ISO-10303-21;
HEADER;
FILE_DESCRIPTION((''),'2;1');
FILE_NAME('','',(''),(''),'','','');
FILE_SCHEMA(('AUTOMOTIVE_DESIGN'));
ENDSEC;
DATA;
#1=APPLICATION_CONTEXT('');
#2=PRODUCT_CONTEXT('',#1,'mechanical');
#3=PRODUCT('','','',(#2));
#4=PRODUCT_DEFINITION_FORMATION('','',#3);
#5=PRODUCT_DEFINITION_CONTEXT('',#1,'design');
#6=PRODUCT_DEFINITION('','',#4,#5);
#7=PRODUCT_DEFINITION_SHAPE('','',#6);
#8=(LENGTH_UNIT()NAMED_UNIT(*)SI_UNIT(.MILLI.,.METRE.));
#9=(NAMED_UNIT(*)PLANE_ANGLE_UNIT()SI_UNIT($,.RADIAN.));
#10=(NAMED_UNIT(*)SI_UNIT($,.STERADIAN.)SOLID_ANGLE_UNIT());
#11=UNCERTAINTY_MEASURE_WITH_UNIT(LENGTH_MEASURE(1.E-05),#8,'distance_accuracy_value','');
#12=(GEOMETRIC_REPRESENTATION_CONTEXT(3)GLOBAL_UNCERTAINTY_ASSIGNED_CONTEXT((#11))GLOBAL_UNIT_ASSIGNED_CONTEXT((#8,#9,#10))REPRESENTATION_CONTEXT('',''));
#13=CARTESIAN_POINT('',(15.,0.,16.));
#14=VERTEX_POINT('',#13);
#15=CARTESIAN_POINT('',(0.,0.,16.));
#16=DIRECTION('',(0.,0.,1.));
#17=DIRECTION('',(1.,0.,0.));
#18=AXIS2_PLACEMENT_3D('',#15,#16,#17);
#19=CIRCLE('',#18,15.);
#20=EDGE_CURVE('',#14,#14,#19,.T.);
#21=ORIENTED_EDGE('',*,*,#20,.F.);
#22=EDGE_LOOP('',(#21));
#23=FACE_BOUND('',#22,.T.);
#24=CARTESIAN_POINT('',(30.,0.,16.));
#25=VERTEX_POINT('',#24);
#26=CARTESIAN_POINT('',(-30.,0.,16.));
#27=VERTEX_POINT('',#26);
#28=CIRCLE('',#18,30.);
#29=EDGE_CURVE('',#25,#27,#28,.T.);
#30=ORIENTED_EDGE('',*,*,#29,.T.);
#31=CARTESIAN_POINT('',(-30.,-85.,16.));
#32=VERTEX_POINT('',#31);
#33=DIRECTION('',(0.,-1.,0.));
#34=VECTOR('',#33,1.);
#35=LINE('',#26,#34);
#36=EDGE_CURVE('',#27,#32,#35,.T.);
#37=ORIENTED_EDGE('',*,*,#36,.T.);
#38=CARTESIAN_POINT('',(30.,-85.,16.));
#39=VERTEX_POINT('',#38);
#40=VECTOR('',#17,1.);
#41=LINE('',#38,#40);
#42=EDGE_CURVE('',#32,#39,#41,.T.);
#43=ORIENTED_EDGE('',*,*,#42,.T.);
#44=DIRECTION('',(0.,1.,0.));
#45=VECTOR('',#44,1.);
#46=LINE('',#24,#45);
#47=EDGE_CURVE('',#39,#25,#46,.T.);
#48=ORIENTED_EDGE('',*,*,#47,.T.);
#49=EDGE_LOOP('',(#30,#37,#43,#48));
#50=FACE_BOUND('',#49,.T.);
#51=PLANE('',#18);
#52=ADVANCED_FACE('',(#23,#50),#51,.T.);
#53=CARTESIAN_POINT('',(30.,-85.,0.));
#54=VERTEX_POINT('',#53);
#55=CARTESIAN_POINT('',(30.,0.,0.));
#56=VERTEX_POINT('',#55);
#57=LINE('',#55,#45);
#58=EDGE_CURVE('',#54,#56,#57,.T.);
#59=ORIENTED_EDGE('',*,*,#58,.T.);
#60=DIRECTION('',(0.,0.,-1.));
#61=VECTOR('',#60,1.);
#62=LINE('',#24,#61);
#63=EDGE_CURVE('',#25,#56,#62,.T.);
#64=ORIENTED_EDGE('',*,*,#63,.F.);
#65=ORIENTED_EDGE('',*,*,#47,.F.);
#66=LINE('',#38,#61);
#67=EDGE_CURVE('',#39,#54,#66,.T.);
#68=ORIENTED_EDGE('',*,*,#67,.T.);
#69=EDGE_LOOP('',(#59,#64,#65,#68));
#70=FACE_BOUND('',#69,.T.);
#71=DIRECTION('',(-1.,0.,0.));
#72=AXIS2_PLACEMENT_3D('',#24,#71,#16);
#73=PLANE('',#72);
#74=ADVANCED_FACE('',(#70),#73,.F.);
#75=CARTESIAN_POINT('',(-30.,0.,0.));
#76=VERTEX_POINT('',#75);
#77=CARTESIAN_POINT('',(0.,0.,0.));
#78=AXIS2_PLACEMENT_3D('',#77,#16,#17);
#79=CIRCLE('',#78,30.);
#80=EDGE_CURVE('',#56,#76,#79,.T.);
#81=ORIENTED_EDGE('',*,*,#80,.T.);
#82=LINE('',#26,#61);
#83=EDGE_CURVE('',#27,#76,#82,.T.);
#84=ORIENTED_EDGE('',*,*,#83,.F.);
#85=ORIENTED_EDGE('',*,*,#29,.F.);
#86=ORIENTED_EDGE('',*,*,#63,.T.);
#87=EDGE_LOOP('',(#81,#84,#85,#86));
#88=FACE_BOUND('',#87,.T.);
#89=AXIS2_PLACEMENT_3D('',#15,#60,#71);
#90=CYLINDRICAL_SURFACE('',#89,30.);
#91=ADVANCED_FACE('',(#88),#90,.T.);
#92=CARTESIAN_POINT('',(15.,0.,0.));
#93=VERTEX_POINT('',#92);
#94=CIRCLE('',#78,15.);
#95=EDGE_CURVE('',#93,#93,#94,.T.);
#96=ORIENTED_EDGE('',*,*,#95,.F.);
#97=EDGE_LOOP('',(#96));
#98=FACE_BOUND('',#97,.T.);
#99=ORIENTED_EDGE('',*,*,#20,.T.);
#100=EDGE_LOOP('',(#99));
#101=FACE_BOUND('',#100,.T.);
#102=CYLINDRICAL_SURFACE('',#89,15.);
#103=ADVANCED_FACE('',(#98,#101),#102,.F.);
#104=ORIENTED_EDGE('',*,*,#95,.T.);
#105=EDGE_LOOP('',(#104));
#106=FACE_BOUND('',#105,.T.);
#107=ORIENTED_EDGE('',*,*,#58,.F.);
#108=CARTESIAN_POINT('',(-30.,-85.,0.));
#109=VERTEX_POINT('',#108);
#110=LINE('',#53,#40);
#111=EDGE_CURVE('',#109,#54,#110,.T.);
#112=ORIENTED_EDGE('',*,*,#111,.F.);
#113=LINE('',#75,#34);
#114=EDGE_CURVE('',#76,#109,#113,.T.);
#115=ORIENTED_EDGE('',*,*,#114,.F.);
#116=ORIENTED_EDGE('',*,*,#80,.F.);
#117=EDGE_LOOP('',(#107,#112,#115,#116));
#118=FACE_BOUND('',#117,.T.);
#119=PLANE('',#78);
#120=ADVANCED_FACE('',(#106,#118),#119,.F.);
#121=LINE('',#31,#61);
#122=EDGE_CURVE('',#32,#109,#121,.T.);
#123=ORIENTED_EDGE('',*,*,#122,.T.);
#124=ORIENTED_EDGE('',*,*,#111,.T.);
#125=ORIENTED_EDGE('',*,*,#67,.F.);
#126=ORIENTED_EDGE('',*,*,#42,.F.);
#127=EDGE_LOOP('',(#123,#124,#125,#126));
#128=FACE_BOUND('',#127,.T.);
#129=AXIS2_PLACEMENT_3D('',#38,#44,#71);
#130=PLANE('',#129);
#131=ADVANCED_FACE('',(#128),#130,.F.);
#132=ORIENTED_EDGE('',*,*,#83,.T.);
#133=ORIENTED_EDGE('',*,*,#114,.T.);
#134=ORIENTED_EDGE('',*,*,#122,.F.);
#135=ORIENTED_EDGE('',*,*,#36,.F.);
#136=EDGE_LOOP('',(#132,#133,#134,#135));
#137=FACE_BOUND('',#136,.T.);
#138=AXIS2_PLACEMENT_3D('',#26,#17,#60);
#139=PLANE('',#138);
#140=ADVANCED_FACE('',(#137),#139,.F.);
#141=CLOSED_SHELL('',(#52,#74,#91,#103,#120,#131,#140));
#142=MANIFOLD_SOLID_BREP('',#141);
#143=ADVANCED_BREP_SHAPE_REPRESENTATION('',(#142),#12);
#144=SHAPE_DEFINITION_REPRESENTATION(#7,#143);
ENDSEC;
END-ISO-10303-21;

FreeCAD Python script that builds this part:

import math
import FreeCAD as App
import Part
import Sketcher
from FreeCAD import Vector

doc = App.newDocument("Part")
params = doc.addObject("Spreadsheet::Sheet", "Params")
for row, (alias, value) in enumerate([
    ("sketch1_diameter", "30 mm"),
    ("sketch1_radius", "30 mm"),
    ("sketch1_height", "85 mm"),
    ("pad1_length", "16 mm"),
], start=1):
    params.set(f"A{row}", alias)
    params.set(f"B{row}", "=" + value)
    params.setAlias(f"B{row}", alias)

body = doc.addObject("PartDesign::Body", "Body")

# Sketch on XY plane
sketch1 = body.newObject("Sketcher::SketchObject", "Sketch")
sketch1.AttachmentSupport = (doc.getObject("XY_Plane"), [""])
sketch1.MapMode = "FlatFace"
sketch1.addGeometry(Part.LineSegment(Vector(30, -85, 0), Vector(30, 0, 0)), False)
sketch1.addGeometry(Part.ArcOfCircle(Part.Circle(Vector(0, 0, 0), Vector(0, 0, 1), 30), math.radians(0), math.radians(180)), False)
sketch1.addGeometry(Part.LineSegment(Vector(-30, 0, 0), Vector(-30, -85, 0)), False)
sketch1.addGeometry(Part.LineSegment(Vector(-30, -85, 0), Vector(30, -85, 0)), False)
sketch1.addGeometry(Part.Circle(Vector(0, 0, 0), Vector(0, 0, 1), 15), False)
sketch1.addConstraint(Sketcher.Constraint("Tangent", 0, 2, 1, 1))
sketch1.addConstraint(Sketcher.Constraint("Tangent", 1, 2, 2, 1))
sketch1.addConstraint(Sketcher.Constraint("Coincident", 2, 2, 3, 1))
sketch1.addConstraint(Sketcher.Constraint("Coincident", 3, 2, 0, 1))
sketch1.addConstraint(Sketcher.Constraint("Vertical", 0))
sketch1.addConstraint(Sketcher.Constraint("Vertical", 2))
sketch1.addConstraint(Sketcher.Constraint("Horizontal", 3))
sketch1.addConstraint(Sketcher.Constraint("Coincident", 1, 3, -1, 1))
sketch1.addConstraint(Sketcher.Constraint("Coincident", 4, 3, -1, 1))
sketch1.addConstraint(Sketcher.Constraint("Diameter", 4, 30.0))
sketch1.addConstraint(Sketcher.Constraint("Radius", 1, 30.0))
sketch1.addConstraint(Sketcher.Constraint("DistanceY", 0, 1, 0, 2, 85.0))
sketch1.setExpression("Constraints[9]", "Params.sketch1_diameter")
sketch1.setExpression("Constraints[10]", "Params.sketch1_radius")
sketch1.setExpression("Constraints[11]", "Params.sketch1_height")
pad1 = body.newObject("PartDesign::Pad", "Pad")
pad1.Profile = sketch1
pad1.setExpression("Length", "Params.pad1_length")

doc.recompute()
